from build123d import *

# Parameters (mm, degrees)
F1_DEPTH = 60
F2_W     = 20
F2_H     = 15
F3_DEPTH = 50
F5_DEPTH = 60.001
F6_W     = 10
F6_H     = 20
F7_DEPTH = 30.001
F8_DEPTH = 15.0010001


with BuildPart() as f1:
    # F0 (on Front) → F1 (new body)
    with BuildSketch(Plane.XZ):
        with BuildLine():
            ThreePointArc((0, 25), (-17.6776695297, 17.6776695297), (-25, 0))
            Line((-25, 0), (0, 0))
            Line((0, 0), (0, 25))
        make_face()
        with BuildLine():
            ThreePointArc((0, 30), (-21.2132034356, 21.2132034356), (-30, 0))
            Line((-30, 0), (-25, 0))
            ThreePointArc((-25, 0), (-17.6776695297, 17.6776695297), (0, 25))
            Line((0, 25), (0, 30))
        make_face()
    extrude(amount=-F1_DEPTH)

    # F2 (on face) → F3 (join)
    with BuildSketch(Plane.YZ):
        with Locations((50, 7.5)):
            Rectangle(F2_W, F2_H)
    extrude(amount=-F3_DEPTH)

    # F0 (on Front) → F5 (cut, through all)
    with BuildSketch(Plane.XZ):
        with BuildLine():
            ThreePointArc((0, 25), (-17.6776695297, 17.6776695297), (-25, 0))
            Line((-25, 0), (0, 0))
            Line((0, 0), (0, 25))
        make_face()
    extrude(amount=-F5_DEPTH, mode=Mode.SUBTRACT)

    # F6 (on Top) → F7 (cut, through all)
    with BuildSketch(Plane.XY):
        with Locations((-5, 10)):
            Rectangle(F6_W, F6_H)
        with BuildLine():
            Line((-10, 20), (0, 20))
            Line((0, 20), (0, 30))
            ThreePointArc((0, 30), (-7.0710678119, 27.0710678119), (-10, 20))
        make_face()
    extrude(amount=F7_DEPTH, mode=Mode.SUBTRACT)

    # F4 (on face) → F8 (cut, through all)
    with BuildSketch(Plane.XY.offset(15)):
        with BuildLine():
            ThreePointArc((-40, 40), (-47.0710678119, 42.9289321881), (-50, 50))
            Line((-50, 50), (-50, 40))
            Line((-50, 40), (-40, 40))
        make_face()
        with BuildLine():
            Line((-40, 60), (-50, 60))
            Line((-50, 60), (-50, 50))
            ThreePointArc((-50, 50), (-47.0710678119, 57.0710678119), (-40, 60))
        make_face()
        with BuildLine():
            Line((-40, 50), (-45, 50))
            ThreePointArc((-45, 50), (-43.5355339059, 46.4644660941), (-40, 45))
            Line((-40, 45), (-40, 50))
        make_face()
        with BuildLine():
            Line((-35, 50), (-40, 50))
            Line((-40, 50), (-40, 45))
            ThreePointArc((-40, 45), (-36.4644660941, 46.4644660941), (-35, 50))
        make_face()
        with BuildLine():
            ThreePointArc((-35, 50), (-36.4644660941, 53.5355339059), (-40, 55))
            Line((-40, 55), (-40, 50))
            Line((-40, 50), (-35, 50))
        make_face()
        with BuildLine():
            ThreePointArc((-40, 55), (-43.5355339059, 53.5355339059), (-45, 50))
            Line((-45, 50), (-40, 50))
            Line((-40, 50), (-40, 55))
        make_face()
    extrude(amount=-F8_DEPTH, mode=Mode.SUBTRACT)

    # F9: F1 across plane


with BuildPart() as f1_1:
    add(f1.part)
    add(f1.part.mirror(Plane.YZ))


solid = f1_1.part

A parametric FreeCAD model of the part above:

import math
import FreeCAD as App
import Part
import Sketcher
from FreeCAD import Vector
Q = App.Units.Quantity


def add_polygon(sketch, points):
    """Adds a closed chain of lines whose ends are joined by coincident constraints."""
    first, n = sketch.GeometryCount, len(points)
    for a, b in zip(points, points[1:] + points[:1]):
        sketch.addGeometry(Part.LineSegment(App.Vector(*a, 0), App.Vector(*b, 0)), False)
    for i in range(n):
        sketch.addConstraint(Sketcher.Constraint("Coincident", first + i, 2, first + (i + 1) % n, 1))

doc = App.newDocument("Part")
body = doc.addObject("PartDesign::Body", "Body")

sketch1 = body.newObject("Sketcher::SketchObject", "Sketch")
sketch1.AttachmentSupport = (doc.getObject("XZ_Plane"), [""])
sketch1.MapMode = "FlatFace"
sketch1.addGeometry([
    Part.LineSegment(Vector(0, 0, 0), Vector(0, 30, 0)),
    Part.ArcOfCircle(Part.Circle(Vector(0, 0, 0), Vector(0, 0, 1), 30), math.radians(90), math.radians(180)),
    Part.LineSegment(Vector(-30, 0, 0), Vector(0, 0, 0)),
], False)
sketch1.addConstraint([
    Sketcher.Constraint("Coincident", 0, 2, 1, 1),
    Sketcher.Constraint("Coincident", 1, 2, 2, 1),
    Sketcher.Constraint("Coincident", 2, 2, 0, 1),
    Sketcher.Constraint("Vertical", 0),
    Sketcher.Constraint("Horizontal", 2),
    Sketcher.Constraint("Coincident", 1, 3, -1, 1),
    Sketcher.Constraint("Coincident", 2, 2, -1, 1),
    Sketcher.Constraint("Radius", 1, Q("30 mm")),
])
pad1 = body.newObject("PartDesign::Pad", "Pad")
pad1.Profile = sketch1
pad1.Length = 60
pad1.Reversed = True

sketch2 = body.newObject("Sketcher::SketchObject", "Sketch001")
sketch2.AttachmentSupport = (doc.getObject("YZ_Plane"), [""])
sketch2.MapMode = "FlatFace"
add_polygon(sketch2, [(40, 15), (40, 0), (60, 0), (60, 15)])
sketch2.addConstraint([
    Sketcher.Constraint("Vertical", 0),
    Sketcher.Constraint("Horizontal", 1),
    Sketcher.Constraint("Vertical", 2),
    Sketcher.Constraint("Horizontal", 3),
    Sketcher.Constraint("PointOnObject", 0, 2, -1),
    Sketcher.Constraint("DistanceX", 1, 1, 1, 2, Q("20 mm")),
    Sketcher.Constraint("DistanceY", 0, 2, 0, 1, Q("15 mm")),
    Sketcher.Constraint("DistanceX", -1, 1, 0, 2, Q("40 mm")),
])
pad2 = body.newObject("PartDesign::Pad", "Pad001")
pad2.Profile = sketch2
pad2.Length = 50
pad2.Reversed = True

sketch3 = body.newObject("Sketcher::SketchObject", "Sketch002")
sketch3.AttachmentSupport = (doc.getObject("XZ_Plane"), [""])
sketch3.MapMode = "FlatFace"
sketch3.addGeometry([
    Part.ArcOfCircle(Part.Circle(Vector(0, 0, 0), Vector(0, 0, 1), 25), math.radians(90), math.radians(180)),
    Part.LineSegment(Vector(-25, 0, 0), Vector(0, 0, 0)),
    Part.LineSegment(Vector(0, 0, 0), Vector(0, 25, 0)),
], False)
sketch3.addConstraint([
    Sketcher.Constraint("Coincident", 0, 2, 1, 1),
    Sketcher.Constraint("Coincident", 1, 2, 2, 1),
    Sketcher.Constraint("Coincident", 2, 2, 0, 1),
    Sketcher.Constraint("Horizontal", 1),
    Sketcher.Constraint("Vertical", 2),
    Sketcher.Constraint("Coincident", 0, 3, -1, 1),
    Sketcher.Constraint("Coincident", 1, 2, -1, 1),
    Sketcher.Constraint("Radius", 0, Q("25 mm")),
])
pocket1 = body.newObject("PartDesign::Pocket", "Pocket")
pocket1.Profile = sketch3
pocket1.Type = "ThroughAll"

sketch4 = body.newObject("Sketcher::SketchObject", "Sketch003")
sketch4.AttachmentSupport = (doc.getObject("XY_Plane"), [""])
sketch4.MapMode = "FlatFace"
sketch4.addGeometry([
    Part.LineSegment(Vector(-10, 20, 0), Vector(-10, 0, 0)),
    Part.LineSegment(Vector(-10, 0, 0), Vector(0, 0, 0)),
    Part.LineSegment(Vector(0, 0, 0), Vector(0, 30, 0)),
    Part.ArcOfCircle(Part.Circle(Vector(0, 20, 0), Vector(0, 0, 1), 10), math.radians(90), math.radians(180)),
], False)
sketch4.addConstraint([
    Sketcher.Constraint("Coincident", 0, 2, 1, 1),
    Sketcher.Constraint("Coincident", 1, 2, 2, 1),
    Sketcher.Constraint("Coincident", 2, 2, 3, 1),
    Sketcher.Constraint("Tangent", 3, 2, 0, 1),
    Sketcher.Constraint("Vertical", 0),
    Sketcher.Constraint("Horizontal", 1),
    Sketcher.Constraint("Vertical", 2),
    Sketcher.Constraint("Coincident", 1, 2, -1, 1),
    Sketcher.Constraint("PointOnObject", 3, 3, -2),
    Sketcher.Constraint("Radius", 3, Q("10 mm")),
    Sketcher.Constraint("DistanceY", 0, 2, 0, 1, Q("20 mm")),
])
pocket2 = body.newObject("PartDesign::Pocket", "Pocket001")
pocket2.Profile = sketch4
pocket2.Type = "ThroughAll"
pocket2.Reversed = True

sketch5 = body.newObject("Sketcher::SketchObject", "Sketch004")
sketch5.AttachmentSupport = (doc.getObject("XY_Plane"), [""])
sketch5.MapMode = "FlatFace"
sketch5.AttachmentOffset = App.Placement(Vector(0, 0, 15), App.Rotation())
sketch5.addGeometry([
    Part.ArcOfCircle(Part.Circle(Vector(-40, 50, 0), Vector(0, 0, 1), 10), math.radians(180), math.radians(270)),
    Part.LineSegment(Vector(-50, 50, 0), Vector(-50, 40, 0)),
    Part.LineSegment(Vector(-50, 40, 0), Vector(-40, 40, 0)),
    Part.LineSegment(Vector(-40, 60, 0), Vector(-50, 60, 0)),
    Part.LineSegment(Vector(-50, 60, 0), Vector(-50, 50, 0)),
    Part.ArcOfCircle(Part.Circle(Vector(-40, 50, 0), Vector(0, 0, 1), 10), math.radians(90), math.radians(180)),
    Part.ArcOfCircle(Part.Circle(Vector(-40, 50, 0), Vector(0, 0, 1), 5), math.radians(180), math.radians(270)),
    Part.ArcOfCircle(Part.Circle(Vector(-40, 50, 0), Vector(0, 0, 1), 5), math.radians(-90), math.radians(0)),
    Part.ArcOfCircle(Part.Circle(Vector(-40, 50, 0), Vector(0, 0, 1), 5), math.radians(0), math.radians(90)),
    Part.ArcOfCircle(Part.Circle(Vector(-40, 50, 0), Vector(0, 0, 1), 5), math.radians(90), math.radians(180)),
], False)
sketch5.addConstraint([
    Sketcher.Constraint("Tangent", 0, 1, 1, 1),
    Sketcher.Constraint("Coincident", 1, 2, 2, 1),
    Sketcher.Constraint("Tangent", 2, 2, 0, 2),
    Sketcher.Constraint("Coincident", 3, 2, 4, 1),
    Sketcher.Constraint("Tangent", 4, 2, 5, 2),
    Sketcher.Constraint("Tangent", 5, 1, 3, 1),
    Sketcher.Constraint("Tangent", 6, 2, 7, 1),
    Sketcher.Constraint("Tangent", 7, 2, 8, 1),
    Sketcher.Constraint("Tangent", 8, 2, 9, 1),
    Sketcher.Constraint("Tangent", 9, 2, 6, 1),
    Sketcher.Constraint("Vertical", 1),
    Sketcher.Constraint("Horizontal", 2),
    Sketcher.Constraint("Horizontal", 3),
    Sketcher.Constraint("Vertical", 4),
    Sketcher.Constraint("Coincident", 5, 3, 0, 3),
    Sketcher.Constraint("Coincident", 6, 3, 0, 3),
    Sketcher.Constraint("Equal", 0, 5),
    Sketcher.Constraint("Equal", 6, 7),
    Sketcher.Constraint("Horizontal", 4, 2, 7, 2),
    Sketcher.Constraint("Horizontal", 7, 2, 9, 2),
    Sketcher.Constraint("Vertical", 5, 1, 6, 2),
    Sketcher.Constraint("Vertical", 6, 2, 8, 2),
    Sketcher.Constraint("Radius", 0, Q("10 mm")),
    Sketcher.Constraint("Radius", 6, Q("5 mm")),
    Sketcher.Constraint("DistanceX", 0, 3, -1, 1, Q("40 mm")),
    Sketcher.Constraint("DistanceY", -1, 1, 0, 3, Q("50 mm")),
])
pocket3 = body.newObject("PartDesign::Pocket", "Pocket002")
pocket3.Profile = sketch5
pocket3.Type = "ThroughAll"
body2 = doc.addObject("PartDesign::Body", "Body001")
doc.recompute()

body2.BaseFeature = body
doc.recompute()

mirroring = doc.addObject("Part::Mirroring", "Mirroring")
mirroring.Source = body
mirroring.Base = Vector(0, 0, 0)
mirroring.Normal = Vector(1, 0, 0)
body3 = doc.addObject("PartDesign::Body", "Body002")
body3.BaseFeature = mirroring
boolean = body2.newObject("PartDesign::Boolean", "Boolean")
boolean.Type = "Fuse"
boolean.addObjects([body3])
doc.recompute()
mirroring.Visibility = False

doc.recompute()
